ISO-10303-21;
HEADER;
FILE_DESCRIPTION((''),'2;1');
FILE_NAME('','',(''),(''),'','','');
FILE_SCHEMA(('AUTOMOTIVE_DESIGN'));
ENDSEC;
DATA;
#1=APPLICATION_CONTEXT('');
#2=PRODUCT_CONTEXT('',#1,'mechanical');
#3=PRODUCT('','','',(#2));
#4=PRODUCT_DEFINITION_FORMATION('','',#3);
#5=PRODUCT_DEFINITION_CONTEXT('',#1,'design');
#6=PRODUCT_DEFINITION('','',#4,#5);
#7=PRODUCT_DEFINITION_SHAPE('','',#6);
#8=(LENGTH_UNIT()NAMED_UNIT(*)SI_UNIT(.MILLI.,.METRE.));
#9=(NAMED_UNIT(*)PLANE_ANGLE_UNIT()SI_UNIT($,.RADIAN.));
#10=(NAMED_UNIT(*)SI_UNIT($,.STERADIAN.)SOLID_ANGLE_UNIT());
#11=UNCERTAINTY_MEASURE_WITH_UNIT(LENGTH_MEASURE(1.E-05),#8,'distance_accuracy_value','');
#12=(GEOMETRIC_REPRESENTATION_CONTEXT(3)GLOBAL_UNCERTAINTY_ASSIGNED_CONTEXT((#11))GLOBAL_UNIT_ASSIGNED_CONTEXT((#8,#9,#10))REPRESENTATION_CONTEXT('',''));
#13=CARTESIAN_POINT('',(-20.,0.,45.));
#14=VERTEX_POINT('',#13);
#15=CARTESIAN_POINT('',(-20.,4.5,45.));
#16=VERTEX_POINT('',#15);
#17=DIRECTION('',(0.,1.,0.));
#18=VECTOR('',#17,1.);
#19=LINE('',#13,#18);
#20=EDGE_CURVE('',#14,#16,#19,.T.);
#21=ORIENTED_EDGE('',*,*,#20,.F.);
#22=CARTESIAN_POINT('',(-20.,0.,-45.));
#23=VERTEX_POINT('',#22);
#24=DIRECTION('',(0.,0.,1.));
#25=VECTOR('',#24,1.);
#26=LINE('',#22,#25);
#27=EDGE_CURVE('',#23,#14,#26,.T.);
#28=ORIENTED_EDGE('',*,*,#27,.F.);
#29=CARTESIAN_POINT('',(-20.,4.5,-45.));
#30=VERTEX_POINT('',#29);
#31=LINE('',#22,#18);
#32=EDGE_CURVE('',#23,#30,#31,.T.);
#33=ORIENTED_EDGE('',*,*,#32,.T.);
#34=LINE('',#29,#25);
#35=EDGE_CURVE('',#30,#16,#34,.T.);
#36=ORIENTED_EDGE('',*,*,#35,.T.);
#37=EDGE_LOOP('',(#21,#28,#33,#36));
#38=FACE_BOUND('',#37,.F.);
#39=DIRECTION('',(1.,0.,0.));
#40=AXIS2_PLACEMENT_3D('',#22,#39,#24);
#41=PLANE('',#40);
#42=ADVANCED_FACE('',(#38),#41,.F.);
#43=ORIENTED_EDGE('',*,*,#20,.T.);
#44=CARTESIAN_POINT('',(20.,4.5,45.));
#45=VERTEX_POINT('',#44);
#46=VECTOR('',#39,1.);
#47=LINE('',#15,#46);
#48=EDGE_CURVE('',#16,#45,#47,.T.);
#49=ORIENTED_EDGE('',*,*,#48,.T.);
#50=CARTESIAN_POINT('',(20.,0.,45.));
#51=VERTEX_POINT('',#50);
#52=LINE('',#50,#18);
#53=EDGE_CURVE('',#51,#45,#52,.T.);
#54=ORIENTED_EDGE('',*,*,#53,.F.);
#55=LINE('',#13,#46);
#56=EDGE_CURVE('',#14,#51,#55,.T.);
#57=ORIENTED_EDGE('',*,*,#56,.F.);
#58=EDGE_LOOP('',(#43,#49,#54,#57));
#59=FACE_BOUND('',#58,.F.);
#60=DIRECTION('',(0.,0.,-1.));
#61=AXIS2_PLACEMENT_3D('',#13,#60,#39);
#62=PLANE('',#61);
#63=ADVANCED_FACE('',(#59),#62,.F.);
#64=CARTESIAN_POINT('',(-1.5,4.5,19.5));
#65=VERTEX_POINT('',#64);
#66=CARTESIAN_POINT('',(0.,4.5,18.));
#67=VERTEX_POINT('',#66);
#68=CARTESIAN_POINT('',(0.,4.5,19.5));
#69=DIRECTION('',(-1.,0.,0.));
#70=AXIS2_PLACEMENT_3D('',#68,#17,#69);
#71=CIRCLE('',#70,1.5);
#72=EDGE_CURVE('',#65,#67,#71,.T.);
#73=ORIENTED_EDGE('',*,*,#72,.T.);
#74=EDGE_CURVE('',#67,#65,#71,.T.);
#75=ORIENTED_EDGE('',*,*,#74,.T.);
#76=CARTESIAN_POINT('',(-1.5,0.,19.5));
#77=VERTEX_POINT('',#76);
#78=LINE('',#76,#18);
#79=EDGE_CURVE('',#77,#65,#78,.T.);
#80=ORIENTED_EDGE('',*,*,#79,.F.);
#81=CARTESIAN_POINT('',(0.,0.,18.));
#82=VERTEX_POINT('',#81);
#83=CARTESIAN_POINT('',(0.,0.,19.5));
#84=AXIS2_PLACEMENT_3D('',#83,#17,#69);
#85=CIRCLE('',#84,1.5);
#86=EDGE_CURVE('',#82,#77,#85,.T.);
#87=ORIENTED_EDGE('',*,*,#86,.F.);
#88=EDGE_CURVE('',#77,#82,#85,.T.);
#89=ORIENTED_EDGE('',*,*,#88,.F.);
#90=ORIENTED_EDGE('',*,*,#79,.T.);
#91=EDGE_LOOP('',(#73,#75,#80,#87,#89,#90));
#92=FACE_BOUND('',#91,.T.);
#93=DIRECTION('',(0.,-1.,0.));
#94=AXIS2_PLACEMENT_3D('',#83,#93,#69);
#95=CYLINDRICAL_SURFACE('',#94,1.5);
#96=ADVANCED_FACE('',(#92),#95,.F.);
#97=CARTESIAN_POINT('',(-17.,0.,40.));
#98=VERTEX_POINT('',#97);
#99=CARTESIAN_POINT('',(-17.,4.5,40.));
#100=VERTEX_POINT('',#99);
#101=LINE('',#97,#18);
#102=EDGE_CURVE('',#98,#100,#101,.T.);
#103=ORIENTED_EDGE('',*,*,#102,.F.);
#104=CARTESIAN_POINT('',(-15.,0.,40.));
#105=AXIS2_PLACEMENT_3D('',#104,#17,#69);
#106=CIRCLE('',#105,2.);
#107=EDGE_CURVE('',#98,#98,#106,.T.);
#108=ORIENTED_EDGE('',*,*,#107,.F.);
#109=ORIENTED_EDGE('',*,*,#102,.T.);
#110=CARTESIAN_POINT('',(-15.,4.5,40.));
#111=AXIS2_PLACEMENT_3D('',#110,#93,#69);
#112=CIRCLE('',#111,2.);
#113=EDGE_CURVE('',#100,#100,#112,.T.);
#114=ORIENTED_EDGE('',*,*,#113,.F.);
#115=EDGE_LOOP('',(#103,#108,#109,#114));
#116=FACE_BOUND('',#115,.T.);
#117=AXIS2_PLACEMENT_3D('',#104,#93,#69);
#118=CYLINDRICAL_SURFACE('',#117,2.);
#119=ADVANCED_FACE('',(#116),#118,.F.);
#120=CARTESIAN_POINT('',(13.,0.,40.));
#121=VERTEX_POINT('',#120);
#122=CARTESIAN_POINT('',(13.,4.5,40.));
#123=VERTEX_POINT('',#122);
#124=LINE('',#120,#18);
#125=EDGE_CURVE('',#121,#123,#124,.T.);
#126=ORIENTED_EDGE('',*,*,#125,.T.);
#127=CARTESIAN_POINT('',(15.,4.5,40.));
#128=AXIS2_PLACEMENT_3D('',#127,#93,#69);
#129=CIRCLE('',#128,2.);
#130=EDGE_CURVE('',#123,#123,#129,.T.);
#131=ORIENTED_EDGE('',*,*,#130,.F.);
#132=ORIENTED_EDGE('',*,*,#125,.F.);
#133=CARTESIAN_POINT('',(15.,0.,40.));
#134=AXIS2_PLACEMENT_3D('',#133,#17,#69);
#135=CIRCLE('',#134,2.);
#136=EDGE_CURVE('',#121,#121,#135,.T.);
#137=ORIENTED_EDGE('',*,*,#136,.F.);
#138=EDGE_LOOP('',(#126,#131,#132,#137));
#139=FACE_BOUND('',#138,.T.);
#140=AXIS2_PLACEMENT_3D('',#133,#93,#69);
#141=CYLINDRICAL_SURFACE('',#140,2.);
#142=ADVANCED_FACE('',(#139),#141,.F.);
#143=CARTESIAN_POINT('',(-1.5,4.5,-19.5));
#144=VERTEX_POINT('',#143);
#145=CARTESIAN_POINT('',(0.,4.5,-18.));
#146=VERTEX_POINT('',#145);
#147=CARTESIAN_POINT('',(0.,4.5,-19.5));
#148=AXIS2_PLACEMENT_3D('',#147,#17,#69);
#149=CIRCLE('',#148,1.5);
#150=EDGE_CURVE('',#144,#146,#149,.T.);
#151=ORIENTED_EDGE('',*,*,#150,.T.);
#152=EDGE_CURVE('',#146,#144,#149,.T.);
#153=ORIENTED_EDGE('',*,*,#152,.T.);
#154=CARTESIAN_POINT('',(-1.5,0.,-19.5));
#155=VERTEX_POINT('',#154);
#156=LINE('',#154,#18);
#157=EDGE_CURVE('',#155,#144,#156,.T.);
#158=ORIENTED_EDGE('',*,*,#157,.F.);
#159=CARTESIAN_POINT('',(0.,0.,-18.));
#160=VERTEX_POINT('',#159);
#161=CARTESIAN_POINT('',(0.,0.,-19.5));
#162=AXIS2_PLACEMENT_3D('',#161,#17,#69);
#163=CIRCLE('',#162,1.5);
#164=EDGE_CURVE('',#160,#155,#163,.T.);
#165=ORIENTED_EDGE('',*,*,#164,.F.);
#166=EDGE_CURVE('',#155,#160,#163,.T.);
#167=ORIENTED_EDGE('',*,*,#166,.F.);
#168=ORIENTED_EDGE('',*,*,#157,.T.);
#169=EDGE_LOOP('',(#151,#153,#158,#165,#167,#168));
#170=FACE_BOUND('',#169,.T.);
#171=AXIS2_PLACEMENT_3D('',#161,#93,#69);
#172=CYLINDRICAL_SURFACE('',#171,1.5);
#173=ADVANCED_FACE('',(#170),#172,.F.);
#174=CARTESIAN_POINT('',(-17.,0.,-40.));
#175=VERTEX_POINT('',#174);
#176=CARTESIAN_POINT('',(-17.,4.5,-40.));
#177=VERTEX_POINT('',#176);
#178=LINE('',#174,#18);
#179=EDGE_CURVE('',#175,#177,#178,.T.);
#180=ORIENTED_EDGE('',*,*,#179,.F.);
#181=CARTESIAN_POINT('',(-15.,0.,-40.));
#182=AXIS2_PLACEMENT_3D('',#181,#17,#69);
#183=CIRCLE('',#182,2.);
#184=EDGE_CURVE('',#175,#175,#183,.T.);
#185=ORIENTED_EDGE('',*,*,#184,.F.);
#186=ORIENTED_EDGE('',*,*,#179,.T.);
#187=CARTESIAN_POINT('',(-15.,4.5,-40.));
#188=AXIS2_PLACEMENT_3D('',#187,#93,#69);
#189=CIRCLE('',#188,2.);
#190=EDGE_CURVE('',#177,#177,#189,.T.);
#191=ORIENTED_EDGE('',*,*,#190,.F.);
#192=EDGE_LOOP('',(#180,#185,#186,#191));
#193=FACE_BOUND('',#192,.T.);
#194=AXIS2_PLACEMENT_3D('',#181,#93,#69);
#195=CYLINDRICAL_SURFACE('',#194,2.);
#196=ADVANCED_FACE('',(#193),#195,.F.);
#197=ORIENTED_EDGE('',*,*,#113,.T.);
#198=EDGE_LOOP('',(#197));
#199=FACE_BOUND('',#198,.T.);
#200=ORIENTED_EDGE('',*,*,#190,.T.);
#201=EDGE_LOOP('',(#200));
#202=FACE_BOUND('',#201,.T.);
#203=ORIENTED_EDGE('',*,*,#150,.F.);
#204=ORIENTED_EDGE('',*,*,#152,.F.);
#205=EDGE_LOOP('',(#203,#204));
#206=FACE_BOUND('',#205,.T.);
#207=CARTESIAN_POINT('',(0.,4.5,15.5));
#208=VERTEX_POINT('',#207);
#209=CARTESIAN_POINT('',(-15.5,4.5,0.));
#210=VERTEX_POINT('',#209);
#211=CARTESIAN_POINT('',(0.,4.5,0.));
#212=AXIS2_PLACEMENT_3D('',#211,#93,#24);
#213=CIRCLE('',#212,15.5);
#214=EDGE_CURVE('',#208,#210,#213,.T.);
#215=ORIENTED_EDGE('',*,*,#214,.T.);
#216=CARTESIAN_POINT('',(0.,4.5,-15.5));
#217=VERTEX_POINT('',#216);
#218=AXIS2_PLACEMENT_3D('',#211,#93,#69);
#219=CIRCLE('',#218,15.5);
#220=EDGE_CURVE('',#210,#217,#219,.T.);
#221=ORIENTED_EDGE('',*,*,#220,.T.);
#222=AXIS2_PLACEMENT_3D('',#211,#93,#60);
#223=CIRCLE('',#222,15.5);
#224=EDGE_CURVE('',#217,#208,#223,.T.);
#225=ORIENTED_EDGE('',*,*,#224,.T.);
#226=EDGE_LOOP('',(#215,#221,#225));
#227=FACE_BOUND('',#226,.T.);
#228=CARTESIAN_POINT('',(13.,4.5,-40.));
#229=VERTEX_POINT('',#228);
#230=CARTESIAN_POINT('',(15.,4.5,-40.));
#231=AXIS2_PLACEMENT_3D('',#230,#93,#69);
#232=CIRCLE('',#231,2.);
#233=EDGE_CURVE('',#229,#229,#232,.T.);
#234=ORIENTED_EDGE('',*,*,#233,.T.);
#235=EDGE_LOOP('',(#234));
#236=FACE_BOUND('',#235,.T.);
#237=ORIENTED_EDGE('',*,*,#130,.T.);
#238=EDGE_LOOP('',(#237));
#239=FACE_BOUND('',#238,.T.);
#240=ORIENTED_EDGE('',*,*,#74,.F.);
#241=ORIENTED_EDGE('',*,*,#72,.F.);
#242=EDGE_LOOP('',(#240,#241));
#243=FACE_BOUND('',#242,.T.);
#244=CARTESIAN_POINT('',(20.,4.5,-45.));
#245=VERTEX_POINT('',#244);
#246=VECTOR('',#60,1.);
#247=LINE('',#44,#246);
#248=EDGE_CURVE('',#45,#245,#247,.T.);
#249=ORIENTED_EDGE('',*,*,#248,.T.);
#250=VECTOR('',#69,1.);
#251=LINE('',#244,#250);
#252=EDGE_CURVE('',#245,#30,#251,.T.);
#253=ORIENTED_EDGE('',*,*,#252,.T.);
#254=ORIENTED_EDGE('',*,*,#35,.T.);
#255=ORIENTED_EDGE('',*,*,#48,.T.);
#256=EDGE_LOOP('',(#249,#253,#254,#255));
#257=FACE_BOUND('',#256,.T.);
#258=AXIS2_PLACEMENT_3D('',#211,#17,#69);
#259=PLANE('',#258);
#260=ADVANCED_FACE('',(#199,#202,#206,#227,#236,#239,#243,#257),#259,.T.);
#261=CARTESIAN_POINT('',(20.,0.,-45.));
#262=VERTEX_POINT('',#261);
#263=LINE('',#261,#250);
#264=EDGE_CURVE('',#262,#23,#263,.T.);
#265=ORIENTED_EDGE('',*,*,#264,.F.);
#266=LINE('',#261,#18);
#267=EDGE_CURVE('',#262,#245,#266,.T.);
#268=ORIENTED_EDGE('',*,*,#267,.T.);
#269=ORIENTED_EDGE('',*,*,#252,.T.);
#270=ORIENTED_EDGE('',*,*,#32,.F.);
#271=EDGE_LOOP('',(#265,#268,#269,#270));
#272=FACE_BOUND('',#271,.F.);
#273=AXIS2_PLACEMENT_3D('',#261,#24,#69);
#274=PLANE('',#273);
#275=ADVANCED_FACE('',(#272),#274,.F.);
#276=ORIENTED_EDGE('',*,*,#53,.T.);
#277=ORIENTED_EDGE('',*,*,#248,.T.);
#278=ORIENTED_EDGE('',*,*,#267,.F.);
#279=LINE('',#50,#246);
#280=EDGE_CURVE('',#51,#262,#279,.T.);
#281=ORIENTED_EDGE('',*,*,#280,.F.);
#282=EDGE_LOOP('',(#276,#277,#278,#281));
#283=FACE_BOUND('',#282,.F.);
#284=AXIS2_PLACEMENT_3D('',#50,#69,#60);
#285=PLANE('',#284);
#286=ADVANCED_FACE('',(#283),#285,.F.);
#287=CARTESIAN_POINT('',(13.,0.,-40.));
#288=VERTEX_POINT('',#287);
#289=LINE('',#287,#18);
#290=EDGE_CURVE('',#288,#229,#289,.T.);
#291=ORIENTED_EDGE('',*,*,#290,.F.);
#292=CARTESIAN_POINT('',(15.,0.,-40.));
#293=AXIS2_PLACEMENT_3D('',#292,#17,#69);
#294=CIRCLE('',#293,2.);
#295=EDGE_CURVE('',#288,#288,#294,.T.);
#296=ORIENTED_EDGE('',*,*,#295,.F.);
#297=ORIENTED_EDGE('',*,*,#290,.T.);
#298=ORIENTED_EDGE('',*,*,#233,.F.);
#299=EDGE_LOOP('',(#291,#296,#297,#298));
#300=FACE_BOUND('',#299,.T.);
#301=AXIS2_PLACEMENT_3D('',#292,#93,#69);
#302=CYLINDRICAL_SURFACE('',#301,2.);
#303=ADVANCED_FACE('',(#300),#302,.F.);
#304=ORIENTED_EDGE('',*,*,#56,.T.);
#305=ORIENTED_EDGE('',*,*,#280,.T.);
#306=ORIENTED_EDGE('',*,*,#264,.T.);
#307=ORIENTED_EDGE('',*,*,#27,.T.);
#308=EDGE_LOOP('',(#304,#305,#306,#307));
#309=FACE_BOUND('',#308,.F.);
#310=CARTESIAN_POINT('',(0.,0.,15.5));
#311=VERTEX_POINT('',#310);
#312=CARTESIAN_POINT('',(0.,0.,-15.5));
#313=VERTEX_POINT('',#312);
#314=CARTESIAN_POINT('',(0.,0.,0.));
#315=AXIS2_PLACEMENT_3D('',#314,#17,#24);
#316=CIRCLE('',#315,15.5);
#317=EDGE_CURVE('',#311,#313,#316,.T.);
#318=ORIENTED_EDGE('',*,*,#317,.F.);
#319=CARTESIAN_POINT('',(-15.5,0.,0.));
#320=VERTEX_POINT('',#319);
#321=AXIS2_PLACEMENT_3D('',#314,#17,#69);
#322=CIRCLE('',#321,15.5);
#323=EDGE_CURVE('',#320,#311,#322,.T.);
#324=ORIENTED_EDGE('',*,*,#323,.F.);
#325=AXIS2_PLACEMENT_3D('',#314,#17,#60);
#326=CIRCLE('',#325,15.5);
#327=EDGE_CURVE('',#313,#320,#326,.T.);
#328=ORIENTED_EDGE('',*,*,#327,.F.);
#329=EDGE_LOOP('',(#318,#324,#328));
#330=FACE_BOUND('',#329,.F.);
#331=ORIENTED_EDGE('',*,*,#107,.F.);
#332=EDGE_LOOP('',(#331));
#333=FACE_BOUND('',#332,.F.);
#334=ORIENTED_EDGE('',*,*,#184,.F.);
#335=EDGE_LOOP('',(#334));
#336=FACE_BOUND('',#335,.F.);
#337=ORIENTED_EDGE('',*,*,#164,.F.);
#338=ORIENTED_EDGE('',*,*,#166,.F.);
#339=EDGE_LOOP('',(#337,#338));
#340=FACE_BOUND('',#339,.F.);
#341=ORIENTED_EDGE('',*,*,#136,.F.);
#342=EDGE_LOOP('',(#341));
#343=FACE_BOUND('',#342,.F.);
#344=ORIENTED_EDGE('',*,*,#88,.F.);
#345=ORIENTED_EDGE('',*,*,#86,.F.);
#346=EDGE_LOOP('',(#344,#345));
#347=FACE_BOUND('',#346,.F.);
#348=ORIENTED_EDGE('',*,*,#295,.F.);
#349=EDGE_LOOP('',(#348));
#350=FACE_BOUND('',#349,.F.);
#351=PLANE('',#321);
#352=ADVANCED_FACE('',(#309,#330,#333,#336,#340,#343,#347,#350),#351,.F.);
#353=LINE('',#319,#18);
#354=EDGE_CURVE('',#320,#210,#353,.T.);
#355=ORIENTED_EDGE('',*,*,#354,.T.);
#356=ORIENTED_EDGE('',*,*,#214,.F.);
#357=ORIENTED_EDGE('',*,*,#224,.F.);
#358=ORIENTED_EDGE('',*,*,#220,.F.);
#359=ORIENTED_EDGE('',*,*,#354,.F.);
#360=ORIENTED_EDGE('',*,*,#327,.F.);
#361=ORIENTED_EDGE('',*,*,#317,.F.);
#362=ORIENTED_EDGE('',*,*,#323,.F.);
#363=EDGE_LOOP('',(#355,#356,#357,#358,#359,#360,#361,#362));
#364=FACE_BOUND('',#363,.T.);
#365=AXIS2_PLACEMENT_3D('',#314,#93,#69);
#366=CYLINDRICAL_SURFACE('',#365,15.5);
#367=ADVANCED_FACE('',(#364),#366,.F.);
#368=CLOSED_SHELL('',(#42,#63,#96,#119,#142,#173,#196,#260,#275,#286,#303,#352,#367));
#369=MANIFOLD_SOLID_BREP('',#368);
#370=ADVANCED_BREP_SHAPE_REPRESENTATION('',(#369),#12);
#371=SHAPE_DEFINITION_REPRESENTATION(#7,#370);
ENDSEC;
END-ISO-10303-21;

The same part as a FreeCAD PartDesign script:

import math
import FreeCAD as App
import Part
import Sketcher

V = App.Vector
Q = App.Units.Quantity


def add_polygon(sketch, points):
    """Adds a closed chain of lines whose ends are joined by coincident constraints."""
    first, n = sketch.GeometryCount, len(points)
    for a, b in zip(points, points[1:] + points[:1]):
        sketch.addGeometry(Part.LineSegment(App.Vector(*a, 0), App.Vector(*b, 0)), False)
    for i in range(n):
        sketch.addConstraint(Sketcher.Constraint("Coincident", first + i, 2, first + (i + 1) % n, 1))

doc = App.newDocument("Part")
body = doc.addObject("PartDesign::Body", "Body")

sketch1 = body.newObject("Sketcher::SketchObject", "Sketch")
sketch1.AttachmentSupport = (doc.getObject("XZ_Plane"), [""])
sketch1.MapMode = "FlatFace"
add_polygon(sketch1, [(-20, -45), (-20, 45), (20, 45), (20, -45)])
sketch1.addGeometry(Part.ArcOfCircle(Part.Circle(V(0, 0, 0), V(0, 0, 1), 15.5), math.radians(-90), math.radians(90)), False)
sketch1.addGeometry(Part.ArcOfCircle(Part.Circle(V(0, 0, 0), V(0, 0, 1), 15.5), math.radians(90), math.radians(270)), False)
sketch1.addGeometry(Part.Circle(V(-15, 40, 0), V(0, 0, 1), 2), False)
sketch1.addGeometry(Part.Circle(V(15, 40, 0), V(0, 0, 1), 2), False)
sketch1.addGeometry(Part.Circle(V(15, -40, 0), V(0, 0, 1), 2), False)
sketch1.addGeometry(Part.Circle(V(-15, -40, 0), V(0, 0, 1), 2), False)
sketch1.addGeometry(Part.Circle(V(0, 19.5, 0), V(0, 0, 1), 1.5), False)
sketch1.addGeometry(Part.Circle(V(0, -19.5, 0), V(0, 0, 1), 1.5), False)
sketch1.addConstraint(Sketcher.Constraint("Tangent", 4, 1, 5, 2))
sketch1.addConstraint(Sketcher.Constraint("Coincident", 5, 1, 4, 2))
sketch1.addConstraint(Sketcher.Constraint("Vertical", 0))
sketch1.addConstraint(Sketcher.Constraint("Horizontal", 1))
sketch1.addConstraint(Sketcher.Constraint("Vertical", 2))
sketch1.addConstraint(Sketcher.Constraint("Horizontal", 3))
sketch1.addConstraint(Sketcher.Constraint("Coincident", 4, 3, -1, 1))
sketch1.addConstraint(Sketcher.Constraint("Equal", 6, 7))
sketch1.addConstraint(Sketcher.Constraint("Equal", 7, 8))
sketch1.addConstraint(Sketcher.Constraint("Equal", 8, 9))
sketch1.addConstraint(Sketcher.Constraint("Equal", 10, 11))
sketch1.addConstraint(Sketcher.Constraint("Symmetric", 6, 3, 8, 3, -1, 1))
sketch1.addConstraint(Sketcher.Constraint("Symmetric", 7, 3, 9, 3, -1, 1))
sketch1.addConstraint(Sketcher.Constraint("Symmetric", 10, 3, 11, 3, -1, 1))
sketch1.addConstraint(Sketcher.Constraint("Symmetric", 0, 2, 2, 2, -1, 1))
sketch1.addConstraint(Sketcher.Constraint("Symmetric", 6, 3, 7, 3, -2))
sketch1.addConstraint(Sketcher.Constraint("PointOnObject", 10, 3, -2))
sketch1.addConstraint(Sketcher.Constraint("PointOnObject", 4, 1, -2))
sketch1.addConstraint(Sketcher.Constraint("PointOnObject", 5, 1, -2))
sketch1.addConstraint(Sketcher.Constraint("Diameter", 6, Q("4 mm")))
sketch1.addConstraint(Sketcher.Constraint("Diameter", 10, Q("3 mm")))
sketch1.addConstraint(Sketcher.Constraint("Radius", 4, Q("15.5 mm")))
sketch1.addConstraint(Sketcher.Constraint("DistanceX", 1, 1, 1, 2, Q("40 mm")))
sketch1.addConstraint(Sketcher.Constraint("DistanceY", 0, 1, 0, 2, Q("90 mm")))
sketch1.addConstraint(Sketcher.Constraint("DistanceY", -1, 1, 6, 3, Q("40 mm")))
sketch1.addConstraint(Sketcher.Constraint("DistanceX", 6, 3, 7, 3, Q("30 mm")))
sketch1.addConstraint(Sketcher.Constraint("DistanceY", 11, 3, 10, 3, Q("39 mm")))
pad1 = body.newObject("PartDesign::Pad", "Pad")
pad1.Profile = sketch1
pad1.Length = 4.5
pad1.Reversed = True

doc.recompute()
